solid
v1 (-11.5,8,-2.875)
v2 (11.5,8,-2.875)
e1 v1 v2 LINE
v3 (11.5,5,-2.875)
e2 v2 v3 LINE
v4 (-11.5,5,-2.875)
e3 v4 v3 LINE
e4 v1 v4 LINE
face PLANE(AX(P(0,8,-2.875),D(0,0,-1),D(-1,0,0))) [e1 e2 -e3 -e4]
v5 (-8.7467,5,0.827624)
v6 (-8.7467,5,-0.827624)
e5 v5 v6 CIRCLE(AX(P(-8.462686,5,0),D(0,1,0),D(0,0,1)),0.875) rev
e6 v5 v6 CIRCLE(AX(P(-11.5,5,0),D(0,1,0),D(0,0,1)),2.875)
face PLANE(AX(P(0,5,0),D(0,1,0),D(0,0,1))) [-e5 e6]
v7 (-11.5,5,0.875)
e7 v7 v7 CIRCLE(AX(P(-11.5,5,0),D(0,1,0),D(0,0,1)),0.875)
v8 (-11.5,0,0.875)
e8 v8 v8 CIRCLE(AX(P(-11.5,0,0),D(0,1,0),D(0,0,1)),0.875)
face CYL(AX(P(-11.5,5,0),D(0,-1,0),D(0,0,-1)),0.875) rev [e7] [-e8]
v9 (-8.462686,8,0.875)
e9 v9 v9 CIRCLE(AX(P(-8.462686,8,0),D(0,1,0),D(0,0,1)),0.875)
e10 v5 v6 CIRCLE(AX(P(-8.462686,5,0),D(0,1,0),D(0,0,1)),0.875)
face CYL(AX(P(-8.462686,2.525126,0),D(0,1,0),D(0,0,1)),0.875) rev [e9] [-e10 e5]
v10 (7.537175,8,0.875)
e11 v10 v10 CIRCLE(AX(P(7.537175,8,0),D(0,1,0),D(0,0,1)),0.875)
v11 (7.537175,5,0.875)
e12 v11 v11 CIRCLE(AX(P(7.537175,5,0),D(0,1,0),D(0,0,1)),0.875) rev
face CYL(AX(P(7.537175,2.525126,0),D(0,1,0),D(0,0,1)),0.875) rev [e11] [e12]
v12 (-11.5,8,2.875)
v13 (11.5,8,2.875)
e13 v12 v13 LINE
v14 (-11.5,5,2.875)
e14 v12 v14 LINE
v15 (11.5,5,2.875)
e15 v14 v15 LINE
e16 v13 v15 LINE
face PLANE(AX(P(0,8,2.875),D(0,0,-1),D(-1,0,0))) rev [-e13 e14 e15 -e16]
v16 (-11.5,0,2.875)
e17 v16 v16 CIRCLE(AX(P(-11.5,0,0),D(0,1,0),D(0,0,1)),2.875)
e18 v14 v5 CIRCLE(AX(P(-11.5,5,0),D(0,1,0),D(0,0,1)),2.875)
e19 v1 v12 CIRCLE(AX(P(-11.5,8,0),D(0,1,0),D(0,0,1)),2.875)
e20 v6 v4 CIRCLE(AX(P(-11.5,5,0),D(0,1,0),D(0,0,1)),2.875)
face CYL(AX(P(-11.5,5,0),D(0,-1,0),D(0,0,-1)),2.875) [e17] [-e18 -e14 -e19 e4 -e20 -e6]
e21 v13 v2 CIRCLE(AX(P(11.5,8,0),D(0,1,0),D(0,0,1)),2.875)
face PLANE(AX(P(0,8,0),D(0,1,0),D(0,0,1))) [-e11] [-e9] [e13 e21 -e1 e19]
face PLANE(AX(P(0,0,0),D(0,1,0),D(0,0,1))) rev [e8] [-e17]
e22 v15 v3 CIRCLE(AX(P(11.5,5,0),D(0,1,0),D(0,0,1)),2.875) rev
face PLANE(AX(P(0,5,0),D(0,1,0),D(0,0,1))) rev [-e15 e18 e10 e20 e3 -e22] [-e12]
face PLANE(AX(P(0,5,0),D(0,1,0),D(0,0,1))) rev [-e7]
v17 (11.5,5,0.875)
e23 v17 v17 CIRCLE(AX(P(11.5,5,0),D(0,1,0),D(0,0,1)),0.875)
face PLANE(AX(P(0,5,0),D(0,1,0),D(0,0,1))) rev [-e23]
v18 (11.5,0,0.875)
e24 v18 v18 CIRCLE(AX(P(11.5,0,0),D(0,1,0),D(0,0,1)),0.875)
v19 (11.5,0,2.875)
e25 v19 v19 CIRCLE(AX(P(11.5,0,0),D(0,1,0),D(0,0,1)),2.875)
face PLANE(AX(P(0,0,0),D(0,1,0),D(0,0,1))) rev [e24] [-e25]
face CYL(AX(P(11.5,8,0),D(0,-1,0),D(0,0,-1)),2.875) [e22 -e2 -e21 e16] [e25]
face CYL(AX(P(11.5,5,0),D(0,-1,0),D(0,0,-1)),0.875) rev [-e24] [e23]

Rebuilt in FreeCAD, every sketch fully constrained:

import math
import FreeCAD as App
import Part
import Sketcher
from FreeCAD import Vector

doc = App.newDocument("Part")
params = doc.addObject("Spreadsheet::Sheet", "Params")
for row, (alias, value) in enumerate([
    ("sketch1_diameter", "5.75 mm"),
    ("sketch1_diameter2", "1.75 mm"),
    ("pad1_length", "5 mm"),
    ("sketch2_diameter", "5.75 mm"),
    ("sketch2_diameter2", "1.75 mm"),
    ("pad2_length", "5 mm"),
    ("sketch3_width", "23 mm"),
    ("pad3_length", "3 mm"),
    ("sketch4_diameter", "1.75 mm"),
    ("pocket1_length", "3 mm"),
], start=1):
    params.set(f"A{row}", alias)
    params.set(f"B{row}", "=" + value)
    params.setAlias(f"B{row}", alias)

body = doc.addObject("PartDesign::Body", "Body")

sketch1 = body.newObject("Sketcher::SketchObject", "Sketch")
sketch1.AttachmentSupport = (doc.getObject("XZ_Plane"), [""])
sketch1.MapMode = "FlatFace"
sketch1.addGeometry([
    Part.Circle(Vector(-11.5, 0, 0), Vector(0, 0, 1), 2.9),
    Part.Circle(Vector(-11.5, 0, 0), Vector(0, 0, 1), 0.9),
], False)
sketch1.addConstraint([
    Sketcher.Constraint("Coincident", 1, 3, 0, 3),
    Sketcher.Constraint("PointOnObject", 0, 3, -1),
    Sketcher.Constraint("Diameter", 0, 5.75),
    Sketcher.Constraint("Diameter", 1, 1.75),
    Sketcher.Constraint("DistanceX", 0, 3, -1, 1, 11.5),
])
sketch1.setExpression("Constraints[2]", "Params.sketch1_diameter")
sketch1.setExpression("Constraints[3]", "Params.sketch1_diameter2")
pad1 = body.newObject("PartDesign::Pad", "Pad")
pad1.Profile = sketch1
pad1.setExpression("Length", "Params.pad1_length")
pad1.Reversed = True
body2 = doc.addObject("PartDesign::Body", "Body001")

sketch2 = body2.newObject("Sketcher::SketchObject", "Sketch001")
sketch2.AttachmentSupport = (doc.getObject("XZ_Plane001"), [""])
sketch2.MapMode = "FlatFace"
sketch2.addGeometry([
    Part.Circle(Vector(11.5, 0, 0), Vector(0, 0, 1), 2.9),
    Part.Circle(Vector(11.5, 0, 0), Vector(0, 0, 1), 0.9),
], False)
sketch2.addConstraint([
    Sketcher.Constraint("Coincident", 1, 3, 0, 3),
    Sketcher.Constraint("PointOnObject", 0, 3, -1),
    Sketcher.Constraint("Diameter", 0, 5.75),
    Sketcher.Constraint("Diameter", 1, 1.75),
    Sketcher.Constraint("DistanceX", -1, 1, 0, 3, 11.5),
])
sketch2.setExpression("Constraints[2]", "Params.sketch2_diameter")
sketch2.setExpression("Constraints[3]", "Params.sketch2_diameter2")
pad2 = body2.newObject("PartDesign::Pad", "Pad001")
pad2.Profile = sketch2
pad2.setExpression("Length", "Params.pad2_length")
pad2.Reversed = True
body.AllowCompound = True
doc.recompute()

boolean = body.newObject("PartDesign::Boolean", "Boolean")
boolean.Type = "Fuse"
boolean.addObjects([body2])

sketch3 = body.newObject("Sketcher::SketchObject", "Sketch002")
sketch3.AttachmentSupport = (doc.getObject("XZ_Plane"), [""])
sketch3.MapMode = "FlatFace"
sketch3.AttachmentOffset = App.Placement(Vector(0, 0, -5), App.Rotation())
sketch3.addGeometry([
    Part.LineSegment(Vector(-11.5, 2.9, 0), Vector(11.5, 2.9, 0)),
    Part.ArcOfCircle(Part.Circle(Vector(11.5, 0, 0), Vector(0, 0, 1), 2.9), math.radians(0), math.radians(90)),
    Part.ArcOfCircle(Part.Circle(Vector(11.5, 0, 0), Vector(0, 0, 1), 2.9), math.radians(-90), math.radians(0)),
    Part.LineSegment(Vector(11.5, -2.9, 0), Vector(-11.5, -2.9, 0)),
    Part.ArcOfCircle(Part.Circle(Vector(-11.5, 0, 0), Vector(0, 0, 1), 2.9), math.radians(90), math.radians(270)),
], False)
sketch3.addConstraint([
    Sketcher.Constraint("Tangent", 0, 2, 1, 2),
    Sketcher.Constraint("Tangent", 1, 1, 2, 2),
    Sketcher.Constraint("Tangent", 2, 1, 3, 1),
    Sketcher.Constraint("Tangent", 3, 2, 4, 2),
    Sketcher.Constraint("Tangent", 4, 1, 0, 1),
    Sketcher.Constraint("Horizontal", 0),
    Sketcher.Constraint("Horizontal", 3),
    Sketcher.Constraint("Equal", 1, 2),
    Sketcher.Constraint("Symmetric", 1, 3, 4, 3, -1, 1),
    Sketcher.Constraint("PointOnObject", 1, 1, -1),
    Sketcher.Constraint("DistanceX", 0, 1, 0, 2, 23.0),
    Sketcher.Constraint("Radius", 1, 2.875),
])
sketch3.setExpression("Constraints[10]", "Params.sketch3_width")
pad3 = body.newObject("PartDesign::Pad", "Pad002")
pad3.Profile = sketch3
pad3.setExpression("Length", "Params.pad3_length")
pad3.Reversed = True

sketch4 = body.newObject("Sketcher::SketchObject", "Sketch003")
sketch4.AttachmentSupport = (doc.getObject("XZ_Plane"), [""])
sketch4.MapMode = "FlatFace"
sketch4.AttachmentOffset = App.Placement(Vector(0, 0, -8), App.Rotation())
sketch4.addGeometry([
    Part.Circle(Vector(-8.5, 0, 0), Vector(0, 0, 1), 0.9),
    Part.Circle(Vector(7.5, 0, 0), Vector(0, 0, 1), 0.9),
], False)
sketch4.addConstraint([
    Sketcher.Constraint("Equal", 0, 1),
    Sketcher.Constraint("PointOnObject", 0, 3, -1),
    Sketcher.Constraint("PointOnObject", 1, 3, -1),
    Sketcher.Constraint("Diameter", 0, 1.75),
    Sketcher.Constraint("DistanceX", 0, 3, 1, 3, 15.999862),
    Sketcher.Constraint("DistanceX", 0, 3, -1, 1, 8.462686),
])
sketch4.setExpression("Constraints[3]", "Params.sketch4_diameter")
pocket1 = body.newObject("PartDesign::Pocket", "Pocket")
pocket1.Profile = sketch4
pocket1.setExpression("Length", "Params.pocket1_length")
pocket1.Reversed = True

doc.recompute()
